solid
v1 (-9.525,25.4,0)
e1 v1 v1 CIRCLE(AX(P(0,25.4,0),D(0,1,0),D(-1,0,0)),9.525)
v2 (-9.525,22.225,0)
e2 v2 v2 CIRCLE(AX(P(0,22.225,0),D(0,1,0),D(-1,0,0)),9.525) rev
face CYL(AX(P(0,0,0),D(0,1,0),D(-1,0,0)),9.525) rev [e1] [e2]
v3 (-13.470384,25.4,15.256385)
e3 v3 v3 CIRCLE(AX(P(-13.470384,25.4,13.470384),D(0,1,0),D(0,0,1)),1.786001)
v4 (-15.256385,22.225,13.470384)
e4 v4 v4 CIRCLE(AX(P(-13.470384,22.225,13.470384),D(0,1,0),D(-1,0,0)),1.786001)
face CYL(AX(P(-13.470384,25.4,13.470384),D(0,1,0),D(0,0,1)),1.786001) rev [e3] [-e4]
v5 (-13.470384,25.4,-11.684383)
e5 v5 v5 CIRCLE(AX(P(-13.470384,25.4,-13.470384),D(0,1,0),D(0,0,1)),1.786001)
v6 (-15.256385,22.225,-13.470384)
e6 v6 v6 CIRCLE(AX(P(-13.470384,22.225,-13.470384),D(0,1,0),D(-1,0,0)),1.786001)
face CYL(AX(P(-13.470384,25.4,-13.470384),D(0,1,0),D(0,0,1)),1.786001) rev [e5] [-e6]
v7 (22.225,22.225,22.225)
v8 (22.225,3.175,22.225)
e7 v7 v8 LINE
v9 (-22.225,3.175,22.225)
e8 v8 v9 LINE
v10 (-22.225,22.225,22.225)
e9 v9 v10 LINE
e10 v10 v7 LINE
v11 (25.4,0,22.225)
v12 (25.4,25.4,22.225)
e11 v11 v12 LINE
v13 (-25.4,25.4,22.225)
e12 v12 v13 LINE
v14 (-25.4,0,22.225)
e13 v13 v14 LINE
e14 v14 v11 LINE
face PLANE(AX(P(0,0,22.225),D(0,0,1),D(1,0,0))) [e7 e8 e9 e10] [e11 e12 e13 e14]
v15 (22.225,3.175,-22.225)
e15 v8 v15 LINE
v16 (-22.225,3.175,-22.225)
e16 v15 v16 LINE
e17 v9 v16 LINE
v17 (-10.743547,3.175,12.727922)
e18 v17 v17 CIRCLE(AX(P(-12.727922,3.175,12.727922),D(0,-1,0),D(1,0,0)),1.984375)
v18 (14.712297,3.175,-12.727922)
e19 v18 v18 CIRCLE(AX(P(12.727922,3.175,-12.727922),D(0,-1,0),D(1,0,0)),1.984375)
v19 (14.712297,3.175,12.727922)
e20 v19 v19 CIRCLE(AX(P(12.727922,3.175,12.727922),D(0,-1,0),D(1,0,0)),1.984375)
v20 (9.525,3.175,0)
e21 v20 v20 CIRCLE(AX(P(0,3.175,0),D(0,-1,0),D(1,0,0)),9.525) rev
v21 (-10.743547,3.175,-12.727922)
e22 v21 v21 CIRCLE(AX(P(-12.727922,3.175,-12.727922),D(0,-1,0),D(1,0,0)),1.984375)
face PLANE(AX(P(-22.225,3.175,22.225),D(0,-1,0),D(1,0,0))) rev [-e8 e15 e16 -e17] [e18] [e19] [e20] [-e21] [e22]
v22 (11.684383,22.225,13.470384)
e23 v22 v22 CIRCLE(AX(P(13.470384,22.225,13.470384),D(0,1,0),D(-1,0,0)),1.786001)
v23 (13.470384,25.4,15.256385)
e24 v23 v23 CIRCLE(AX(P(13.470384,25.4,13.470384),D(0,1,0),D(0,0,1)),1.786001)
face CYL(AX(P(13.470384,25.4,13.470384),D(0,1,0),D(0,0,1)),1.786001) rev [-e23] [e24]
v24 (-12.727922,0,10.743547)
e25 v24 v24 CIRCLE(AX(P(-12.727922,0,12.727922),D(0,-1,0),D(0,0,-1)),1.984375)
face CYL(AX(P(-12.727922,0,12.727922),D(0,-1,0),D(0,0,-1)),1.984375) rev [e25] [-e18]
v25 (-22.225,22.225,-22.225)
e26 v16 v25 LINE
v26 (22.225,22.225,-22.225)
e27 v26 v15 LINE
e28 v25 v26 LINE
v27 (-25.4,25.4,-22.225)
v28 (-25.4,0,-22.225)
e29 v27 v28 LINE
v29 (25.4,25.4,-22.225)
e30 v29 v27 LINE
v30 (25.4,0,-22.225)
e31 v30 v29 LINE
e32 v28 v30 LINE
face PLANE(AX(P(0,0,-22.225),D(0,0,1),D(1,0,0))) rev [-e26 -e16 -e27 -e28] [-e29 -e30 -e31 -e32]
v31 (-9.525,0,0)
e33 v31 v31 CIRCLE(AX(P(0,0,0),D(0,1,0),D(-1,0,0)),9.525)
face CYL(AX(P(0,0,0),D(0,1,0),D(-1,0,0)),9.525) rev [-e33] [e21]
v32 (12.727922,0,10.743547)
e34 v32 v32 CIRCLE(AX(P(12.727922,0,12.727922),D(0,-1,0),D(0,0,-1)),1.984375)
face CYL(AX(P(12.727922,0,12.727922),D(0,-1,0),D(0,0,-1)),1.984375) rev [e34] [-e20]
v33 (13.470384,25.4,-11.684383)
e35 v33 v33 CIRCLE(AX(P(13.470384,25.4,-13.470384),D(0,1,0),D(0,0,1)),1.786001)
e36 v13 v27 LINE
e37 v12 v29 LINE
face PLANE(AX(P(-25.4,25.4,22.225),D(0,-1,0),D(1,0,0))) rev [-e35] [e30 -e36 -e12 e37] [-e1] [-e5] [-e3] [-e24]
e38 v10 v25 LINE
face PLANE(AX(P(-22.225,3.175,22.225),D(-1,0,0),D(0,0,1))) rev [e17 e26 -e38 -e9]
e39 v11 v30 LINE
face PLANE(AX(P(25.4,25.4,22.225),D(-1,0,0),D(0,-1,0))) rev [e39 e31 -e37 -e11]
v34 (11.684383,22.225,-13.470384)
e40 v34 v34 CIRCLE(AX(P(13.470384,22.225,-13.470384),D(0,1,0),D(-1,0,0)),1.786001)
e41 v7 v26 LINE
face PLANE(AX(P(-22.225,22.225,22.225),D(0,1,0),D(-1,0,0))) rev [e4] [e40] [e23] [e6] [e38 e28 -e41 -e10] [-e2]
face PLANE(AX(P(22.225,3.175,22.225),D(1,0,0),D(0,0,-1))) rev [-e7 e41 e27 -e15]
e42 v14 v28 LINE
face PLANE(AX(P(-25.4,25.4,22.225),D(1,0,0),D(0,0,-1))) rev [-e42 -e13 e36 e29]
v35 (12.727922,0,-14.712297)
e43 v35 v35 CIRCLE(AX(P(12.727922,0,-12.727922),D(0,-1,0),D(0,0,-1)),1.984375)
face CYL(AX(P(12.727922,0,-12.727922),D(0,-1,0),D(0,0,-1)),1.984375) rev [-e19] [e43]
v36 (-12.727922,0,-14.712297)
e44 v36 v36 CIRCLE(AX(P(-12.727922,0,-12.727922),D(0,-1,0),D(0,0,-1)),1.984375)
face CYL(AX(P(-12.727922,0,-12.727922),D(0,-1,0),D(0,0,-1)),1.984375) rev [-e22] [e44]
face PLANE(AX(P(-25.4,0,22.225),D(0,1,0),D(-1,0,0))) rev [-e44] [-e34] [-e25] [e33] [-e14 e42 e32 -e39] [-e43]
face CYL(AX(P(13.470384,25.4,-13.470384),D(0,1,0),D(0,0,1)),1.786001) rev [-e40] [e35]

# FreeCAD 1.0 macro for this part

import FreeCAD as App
import Part
import Sketcher
from FreeCAD import Vector
Q = App.Units.Quantity

doc = App.newDocument("Part")
params = doc.addObject("Spreadsheet::Sheet", "Params")
for row, (alias, value) in enumerate([
    ("sketch1_width", "2 in"),
    ("sketch1_height", "1 in"),
    ("pad1_length", "1.75 in"),
    ("sketch2_diameter", "0.75 in"),
    ("sketch3_width", "1.75 in"),
    ("sketch3_height", "0.75 in"),
    ("hole_diameter", "3.572002 mm"),
    ("hole_depth", "0.125 in"),
    ("sketch5_diameter", "0.15625 in"),
    ("hole2_diameter", "0.15625 in"),
    ("hole2_depth", "0.125 in"),
], start=1):
    params.set(f"A{row}", alias)
    params.set(f"B{row}", "=" + value)
    params.setAlias(f"B{row}", alias)

body = doc.addObject("PartDesign::Body", "Body")

# Sketch on XY plane
sketch1 = body.newObject("Sketcher::SketchObject", "Sketch")
sketch1.AttachmentSupport = (doc.getObject("XY_Plane"), [""])
sketch1.MapMode = "FlatFace"
sketch1.addGeometry(Part.LineSegment(Vector(-25, 25, 0), Vector(-25, 0, 0)), False)
sketch1.addGeometry(Part.LineSegment(Vector(-25, 0, 0), Vector(25, 0, 0)), False)
sketch1.addGeometry(Part.LineSegment(Vector(25, 0, 0), Vector(25, 25, 0)), False)
sketch1.addGeometry(Part.LineSegment(Vector(25, 25, 0), Vector(-25, 25, 0)), False)
sketch1.addConstraint(Sketcher.Constraint("Coincident", 0, 2, 1, 1))
sketch1.addConstraint(Sketcher.Constraint("Coincident", 1, 2, 2, 1))
sketch1.addConstraint(Sketcher.Constraint("Coincident", 2, 2, 3, 1))
sketch1.addConstraint(Sketcher.Constraint("Coincident", 3, 2, 0, 1))
sketch1.addConstraint(Sketcher.Constraint("Vertical", 0))
sketch1.addConstraint(Sketcher.Constraint("Horizontal", 1))
sketch1.addConstraint(Sketcher.Constraint("Vertical", 2))
sketch1.addConstraint(Sketcher.Constraint("Horizontal", 3))
sketch1.addConstraint(Sketcher.Constraint("Symmetric", 0, 2, 1, 2, -1, 1))
sketch1.addConstraint(Sketcher.Constraint("DistanceX", 1, 1, 1, 2, Q("2 in")))
sketch1.addConstraint(Sketcher.Constraint("DistanceY", 0, 2, 0, 1, Q("1 in")))
sketch1.setExpression("Constraints[9]", "Params.sketch1_width")
sketch1.setExpression("Constraints[10]", "Params.sketch1_height")
pad1 = body.newObject("PartDesign::Pad", "Pad")
pad1.Profile = sketch1
pad1.setExpression("Length", "Params.pad1_length")
pad1.Midplane = True

# Sketch on XZ plane
sketch2 = body.newObject("Sketcher::SketchObject", "Sketch001")
sketch2.AttachmentSupport = (doc.getObject("XZ_Plane"), [""])
sketch2.MapMode = "FlatFace"
sketch2.AttachmentOffset = App.Placement(Vector(0, 0, -1 * 25.4), App.Rotation())
sketch2.addGeometry(Part.Circle(Vector(0, 0, 0), Vector(0, 0, 1), 10), False)
sketch2.addConstraint(Sketcher.Constraint("Coincident", 0, 3, -1, 1))
sketch2.addConstraint(Sketcher.Constraint("Diameter", 0, Q("0.75 in")))
sketch2.setExpression("Constraints[1]", "Params.sketch2_diameter")
pocket1 = body.newObject("PartDesign::Pocket", "Pocket")
pocket1.Profile = sketch2
pocket1.Type = "ThroughAll"
pocket1.Reversed = True

# Sketch on XY plane
sketch3 = body.newObject("Sketcher::SketchObject", "Sketch002")
sketch3.AttachmentSupport = (doc.getObject("XY_Plane"), [""])
sketch3.MapMode = "FlatFace"
sketch3.AttachmentOffset = App.Placement(Vector(0, 0, -0.875 * 25.4), App.Rotation())
sketch3.addGeometry(Part.LineSegment(Vector(22, 22, 0), Vector(22, 3, 0)), False)
sketch3.addGeometry(Part.LineSegment(Vector(22, 3, 0), Vector(-22, 3, 0)), False)
sketch3.addGeometry(Part.LineSegment(Vector(-22, 3, 0), Vector(-22, 22, 0)), False)
sketch3.addGeometry(Part.LineSegment(Vector(-22, 22, 0), Vector(22, 22, 0)), False)
sketch3.addConstraint(Sketcher.Constraint("Coincident", 0, 2, 1, 1))
sketch3.addConstraint(Sketcher.Constraint("Coincident", 1, 2, 2, 1))
sketch3.addConstraint(Sketcher.Constraint("Coincident", 2, 2, 3, 1))
sketch3.addConstraint(Sketcher.Constraint("Coincident", 3, 2, 0, 1))
sketch3.addConstraint(Sketcher.Constraint("Vertical", 0))
sketch3.addConstraint(Sketcher.Constraint("Horizontal", 1))
sketch3.addConstraint(Sketcher.Constraint("Vertical", 2))
sketch3.addConstraint(Sketcher.Constraint("Horizontal", 3))
sketch3.addConstraint(Sketcher.Constraint("DistanceX", 1, 2, 1, 1, Q("1.75 in")))
sketch3.addConstraint(Sketcher.Constraint("DistanceY", 0, 2, 0, 1, Q("0.75 in")))
sketch3.addConstraint(Sketcher.Constraint("DistanceX", -1, 1, 0, 2, Q("0.875 in")))
sketch3.addConstraint(Sketcher.Constraint("DistanceY", -1, 1, 0, 2, Q("0.125 in")))
sketch3.setExpression("Constraints[8]", "Params.sketch3_width")
sketch3.setExpression("Constraints[9]", "Params.sketch3_height")
pocket2 = body.newObject("PartDesign::Pocket", "Pocket001")
pocket2.Profile = sketch3
pocket2.Type = "ThroughAll"
pocket2.Reversed = True

# Sketch on XZ plane
sketch4 = body.newObject("Sketcher::SketchObject", "Sketch003")
sketch4.AttachmentSupport = (doc.getObject("XZ_Plane"), [""])
sketch4.MapMode = "FlatFace"
sketch4.AttachmentOffset = App.Placement(Vector(0, 0, -1 * 25.4), App.Rotation())
sketch4.addGeometry(Part.Circle(Vector(-13.5, -13.5, 0), Vector(0, 0, 1), 1.8), False)
sketch4.addGeometry(Part.Circle(Vector(13.5, -13.5, 0), Vector(0, 0, 1), 1.8), False)
sketch4.addGeometry(Part.Circle(Vector(13.5, 13.5, 0), Vector(0, 0, 1), 1.8), False)
sketch4.addGeometry(Part.Circle(Vector(-13.5, 13.5, 0), Vector(0, 0, 1), 1.8), False)
sketch4.addConstraint(Sketcher.Constraint("Equal", 0, 1))
sketch4.addConstraint(Sketcher.Constraint("Equal", 1, 2))
sketch4.addConstraint(Sketcher.Constraint("Equal", 2, 3))
sketch4.addConstraint(Sketcher.Constraint("Symmetric", 0, 3, 2, 3, -1, 1))
sketch4.addConstraint(Sketcher.Constraint("Symmetric", 1, 3, 3, 3, -1, 1))
sketch4.addConstraint(Sketcher.Constraint("Symmetric", 0, 3, 1, 3, -2))
sketch4.addConstraint(Sketcher.Constraint("Diameter", 0, 3.572002))
sketch4.addConstraint(Sketcher.Constraint("DistanceX", 0, 3, 1, 3, 26.940768))
sketch4.addConstraint(Sketcher.Constraint("DistanceY", 1, 3, 2, 3, 26.940768))
doc.recompute()
hole = body.newObject("PartDesign::Hole", "Hole")
hole.Profile = sketch4
hole.ThreadType = "None"
hole.setExpression("Diameter", "Params.hole_diameter")
hole.DepthType = "Dimension"
hole.setExpression("Depth", "Params.hole_depth")
hole.DrillPoint = "Flat"
hole.Reversed = True

# Sketch on XZ plane
sketch5 = body.newObject("Sketcher::SketchObject", "Sketch004")
sketch5.AttachmentSupport = (doc.getObject("XZ_Plane"), [""])
sketch5.MapMode = "FlatFace"
sketch5.addGeometry(Part.Circle(Vector(12.7, -12.7, 0), Vector(0, 0, 1), 2), False)
sketch5.addGeometry(Part.Circle(Vector(-12.7, -12.7, 0), Vector(0, 0, 1), 2), False)
sketch5.addGeometry(Part.Circle(Vector(-12.7, 12.7, 0), Vector(0, 0, 1), 2), False)
sketch5.addGeometry(Part.Circle(Vector(12.7, 12.7, 0), Vector(0, 0, 1), 2), False)
sketch5.addConstraint(Sketcher.Constraint("Equal", 0, 1))
sketch5.addConstraint(Sketcher.Constraint("Equal", 1, 2))
sketch5.addConstraint(Sketcher.Constraint("Equal", 2, 3))
sketch5.addConstraint(Sketcher.Constraint("Symmetric", 0, 3, 2, 3, -1, 1))
sketch5.addConstraint(Sketcher.Constraint("Symmetric", 1, 3, 3, 3, -1, 1))
sketch5.addConstraint(Sketcher.Constraint("Symmetric", 0, 3, 1, 3, -2))
sketch5.addConstraint(Sketcher.Constraint("Diameter", 0, Q("0.15625 in")))
sketch5.addConstraint(Sketcher.Constraint("DistanceX", -1, 1, 0, 3, 12.727922))
sketch5.addConstraint(Sketcher.Constraint("DistanceY", 0, 3, -1, 1, 12.727922))
sketch5.setExpression("Constraints[6]", "Params.sketch5_diameter")
doc.recompute()
hole2 = body.newObject("PartDesign::Hole", "Hole001")
hole2.Profile = sketch5
hole2.ThreadType = "None"
hole2.setExpression("Diameter", "Params.hole2_diameter")
hole2.DepthType = "Dimension"
hole2.setExpression("Depth", "Params.hole2_depth")
hole2.DrillPoint = "Flat"

doc.recompute()
